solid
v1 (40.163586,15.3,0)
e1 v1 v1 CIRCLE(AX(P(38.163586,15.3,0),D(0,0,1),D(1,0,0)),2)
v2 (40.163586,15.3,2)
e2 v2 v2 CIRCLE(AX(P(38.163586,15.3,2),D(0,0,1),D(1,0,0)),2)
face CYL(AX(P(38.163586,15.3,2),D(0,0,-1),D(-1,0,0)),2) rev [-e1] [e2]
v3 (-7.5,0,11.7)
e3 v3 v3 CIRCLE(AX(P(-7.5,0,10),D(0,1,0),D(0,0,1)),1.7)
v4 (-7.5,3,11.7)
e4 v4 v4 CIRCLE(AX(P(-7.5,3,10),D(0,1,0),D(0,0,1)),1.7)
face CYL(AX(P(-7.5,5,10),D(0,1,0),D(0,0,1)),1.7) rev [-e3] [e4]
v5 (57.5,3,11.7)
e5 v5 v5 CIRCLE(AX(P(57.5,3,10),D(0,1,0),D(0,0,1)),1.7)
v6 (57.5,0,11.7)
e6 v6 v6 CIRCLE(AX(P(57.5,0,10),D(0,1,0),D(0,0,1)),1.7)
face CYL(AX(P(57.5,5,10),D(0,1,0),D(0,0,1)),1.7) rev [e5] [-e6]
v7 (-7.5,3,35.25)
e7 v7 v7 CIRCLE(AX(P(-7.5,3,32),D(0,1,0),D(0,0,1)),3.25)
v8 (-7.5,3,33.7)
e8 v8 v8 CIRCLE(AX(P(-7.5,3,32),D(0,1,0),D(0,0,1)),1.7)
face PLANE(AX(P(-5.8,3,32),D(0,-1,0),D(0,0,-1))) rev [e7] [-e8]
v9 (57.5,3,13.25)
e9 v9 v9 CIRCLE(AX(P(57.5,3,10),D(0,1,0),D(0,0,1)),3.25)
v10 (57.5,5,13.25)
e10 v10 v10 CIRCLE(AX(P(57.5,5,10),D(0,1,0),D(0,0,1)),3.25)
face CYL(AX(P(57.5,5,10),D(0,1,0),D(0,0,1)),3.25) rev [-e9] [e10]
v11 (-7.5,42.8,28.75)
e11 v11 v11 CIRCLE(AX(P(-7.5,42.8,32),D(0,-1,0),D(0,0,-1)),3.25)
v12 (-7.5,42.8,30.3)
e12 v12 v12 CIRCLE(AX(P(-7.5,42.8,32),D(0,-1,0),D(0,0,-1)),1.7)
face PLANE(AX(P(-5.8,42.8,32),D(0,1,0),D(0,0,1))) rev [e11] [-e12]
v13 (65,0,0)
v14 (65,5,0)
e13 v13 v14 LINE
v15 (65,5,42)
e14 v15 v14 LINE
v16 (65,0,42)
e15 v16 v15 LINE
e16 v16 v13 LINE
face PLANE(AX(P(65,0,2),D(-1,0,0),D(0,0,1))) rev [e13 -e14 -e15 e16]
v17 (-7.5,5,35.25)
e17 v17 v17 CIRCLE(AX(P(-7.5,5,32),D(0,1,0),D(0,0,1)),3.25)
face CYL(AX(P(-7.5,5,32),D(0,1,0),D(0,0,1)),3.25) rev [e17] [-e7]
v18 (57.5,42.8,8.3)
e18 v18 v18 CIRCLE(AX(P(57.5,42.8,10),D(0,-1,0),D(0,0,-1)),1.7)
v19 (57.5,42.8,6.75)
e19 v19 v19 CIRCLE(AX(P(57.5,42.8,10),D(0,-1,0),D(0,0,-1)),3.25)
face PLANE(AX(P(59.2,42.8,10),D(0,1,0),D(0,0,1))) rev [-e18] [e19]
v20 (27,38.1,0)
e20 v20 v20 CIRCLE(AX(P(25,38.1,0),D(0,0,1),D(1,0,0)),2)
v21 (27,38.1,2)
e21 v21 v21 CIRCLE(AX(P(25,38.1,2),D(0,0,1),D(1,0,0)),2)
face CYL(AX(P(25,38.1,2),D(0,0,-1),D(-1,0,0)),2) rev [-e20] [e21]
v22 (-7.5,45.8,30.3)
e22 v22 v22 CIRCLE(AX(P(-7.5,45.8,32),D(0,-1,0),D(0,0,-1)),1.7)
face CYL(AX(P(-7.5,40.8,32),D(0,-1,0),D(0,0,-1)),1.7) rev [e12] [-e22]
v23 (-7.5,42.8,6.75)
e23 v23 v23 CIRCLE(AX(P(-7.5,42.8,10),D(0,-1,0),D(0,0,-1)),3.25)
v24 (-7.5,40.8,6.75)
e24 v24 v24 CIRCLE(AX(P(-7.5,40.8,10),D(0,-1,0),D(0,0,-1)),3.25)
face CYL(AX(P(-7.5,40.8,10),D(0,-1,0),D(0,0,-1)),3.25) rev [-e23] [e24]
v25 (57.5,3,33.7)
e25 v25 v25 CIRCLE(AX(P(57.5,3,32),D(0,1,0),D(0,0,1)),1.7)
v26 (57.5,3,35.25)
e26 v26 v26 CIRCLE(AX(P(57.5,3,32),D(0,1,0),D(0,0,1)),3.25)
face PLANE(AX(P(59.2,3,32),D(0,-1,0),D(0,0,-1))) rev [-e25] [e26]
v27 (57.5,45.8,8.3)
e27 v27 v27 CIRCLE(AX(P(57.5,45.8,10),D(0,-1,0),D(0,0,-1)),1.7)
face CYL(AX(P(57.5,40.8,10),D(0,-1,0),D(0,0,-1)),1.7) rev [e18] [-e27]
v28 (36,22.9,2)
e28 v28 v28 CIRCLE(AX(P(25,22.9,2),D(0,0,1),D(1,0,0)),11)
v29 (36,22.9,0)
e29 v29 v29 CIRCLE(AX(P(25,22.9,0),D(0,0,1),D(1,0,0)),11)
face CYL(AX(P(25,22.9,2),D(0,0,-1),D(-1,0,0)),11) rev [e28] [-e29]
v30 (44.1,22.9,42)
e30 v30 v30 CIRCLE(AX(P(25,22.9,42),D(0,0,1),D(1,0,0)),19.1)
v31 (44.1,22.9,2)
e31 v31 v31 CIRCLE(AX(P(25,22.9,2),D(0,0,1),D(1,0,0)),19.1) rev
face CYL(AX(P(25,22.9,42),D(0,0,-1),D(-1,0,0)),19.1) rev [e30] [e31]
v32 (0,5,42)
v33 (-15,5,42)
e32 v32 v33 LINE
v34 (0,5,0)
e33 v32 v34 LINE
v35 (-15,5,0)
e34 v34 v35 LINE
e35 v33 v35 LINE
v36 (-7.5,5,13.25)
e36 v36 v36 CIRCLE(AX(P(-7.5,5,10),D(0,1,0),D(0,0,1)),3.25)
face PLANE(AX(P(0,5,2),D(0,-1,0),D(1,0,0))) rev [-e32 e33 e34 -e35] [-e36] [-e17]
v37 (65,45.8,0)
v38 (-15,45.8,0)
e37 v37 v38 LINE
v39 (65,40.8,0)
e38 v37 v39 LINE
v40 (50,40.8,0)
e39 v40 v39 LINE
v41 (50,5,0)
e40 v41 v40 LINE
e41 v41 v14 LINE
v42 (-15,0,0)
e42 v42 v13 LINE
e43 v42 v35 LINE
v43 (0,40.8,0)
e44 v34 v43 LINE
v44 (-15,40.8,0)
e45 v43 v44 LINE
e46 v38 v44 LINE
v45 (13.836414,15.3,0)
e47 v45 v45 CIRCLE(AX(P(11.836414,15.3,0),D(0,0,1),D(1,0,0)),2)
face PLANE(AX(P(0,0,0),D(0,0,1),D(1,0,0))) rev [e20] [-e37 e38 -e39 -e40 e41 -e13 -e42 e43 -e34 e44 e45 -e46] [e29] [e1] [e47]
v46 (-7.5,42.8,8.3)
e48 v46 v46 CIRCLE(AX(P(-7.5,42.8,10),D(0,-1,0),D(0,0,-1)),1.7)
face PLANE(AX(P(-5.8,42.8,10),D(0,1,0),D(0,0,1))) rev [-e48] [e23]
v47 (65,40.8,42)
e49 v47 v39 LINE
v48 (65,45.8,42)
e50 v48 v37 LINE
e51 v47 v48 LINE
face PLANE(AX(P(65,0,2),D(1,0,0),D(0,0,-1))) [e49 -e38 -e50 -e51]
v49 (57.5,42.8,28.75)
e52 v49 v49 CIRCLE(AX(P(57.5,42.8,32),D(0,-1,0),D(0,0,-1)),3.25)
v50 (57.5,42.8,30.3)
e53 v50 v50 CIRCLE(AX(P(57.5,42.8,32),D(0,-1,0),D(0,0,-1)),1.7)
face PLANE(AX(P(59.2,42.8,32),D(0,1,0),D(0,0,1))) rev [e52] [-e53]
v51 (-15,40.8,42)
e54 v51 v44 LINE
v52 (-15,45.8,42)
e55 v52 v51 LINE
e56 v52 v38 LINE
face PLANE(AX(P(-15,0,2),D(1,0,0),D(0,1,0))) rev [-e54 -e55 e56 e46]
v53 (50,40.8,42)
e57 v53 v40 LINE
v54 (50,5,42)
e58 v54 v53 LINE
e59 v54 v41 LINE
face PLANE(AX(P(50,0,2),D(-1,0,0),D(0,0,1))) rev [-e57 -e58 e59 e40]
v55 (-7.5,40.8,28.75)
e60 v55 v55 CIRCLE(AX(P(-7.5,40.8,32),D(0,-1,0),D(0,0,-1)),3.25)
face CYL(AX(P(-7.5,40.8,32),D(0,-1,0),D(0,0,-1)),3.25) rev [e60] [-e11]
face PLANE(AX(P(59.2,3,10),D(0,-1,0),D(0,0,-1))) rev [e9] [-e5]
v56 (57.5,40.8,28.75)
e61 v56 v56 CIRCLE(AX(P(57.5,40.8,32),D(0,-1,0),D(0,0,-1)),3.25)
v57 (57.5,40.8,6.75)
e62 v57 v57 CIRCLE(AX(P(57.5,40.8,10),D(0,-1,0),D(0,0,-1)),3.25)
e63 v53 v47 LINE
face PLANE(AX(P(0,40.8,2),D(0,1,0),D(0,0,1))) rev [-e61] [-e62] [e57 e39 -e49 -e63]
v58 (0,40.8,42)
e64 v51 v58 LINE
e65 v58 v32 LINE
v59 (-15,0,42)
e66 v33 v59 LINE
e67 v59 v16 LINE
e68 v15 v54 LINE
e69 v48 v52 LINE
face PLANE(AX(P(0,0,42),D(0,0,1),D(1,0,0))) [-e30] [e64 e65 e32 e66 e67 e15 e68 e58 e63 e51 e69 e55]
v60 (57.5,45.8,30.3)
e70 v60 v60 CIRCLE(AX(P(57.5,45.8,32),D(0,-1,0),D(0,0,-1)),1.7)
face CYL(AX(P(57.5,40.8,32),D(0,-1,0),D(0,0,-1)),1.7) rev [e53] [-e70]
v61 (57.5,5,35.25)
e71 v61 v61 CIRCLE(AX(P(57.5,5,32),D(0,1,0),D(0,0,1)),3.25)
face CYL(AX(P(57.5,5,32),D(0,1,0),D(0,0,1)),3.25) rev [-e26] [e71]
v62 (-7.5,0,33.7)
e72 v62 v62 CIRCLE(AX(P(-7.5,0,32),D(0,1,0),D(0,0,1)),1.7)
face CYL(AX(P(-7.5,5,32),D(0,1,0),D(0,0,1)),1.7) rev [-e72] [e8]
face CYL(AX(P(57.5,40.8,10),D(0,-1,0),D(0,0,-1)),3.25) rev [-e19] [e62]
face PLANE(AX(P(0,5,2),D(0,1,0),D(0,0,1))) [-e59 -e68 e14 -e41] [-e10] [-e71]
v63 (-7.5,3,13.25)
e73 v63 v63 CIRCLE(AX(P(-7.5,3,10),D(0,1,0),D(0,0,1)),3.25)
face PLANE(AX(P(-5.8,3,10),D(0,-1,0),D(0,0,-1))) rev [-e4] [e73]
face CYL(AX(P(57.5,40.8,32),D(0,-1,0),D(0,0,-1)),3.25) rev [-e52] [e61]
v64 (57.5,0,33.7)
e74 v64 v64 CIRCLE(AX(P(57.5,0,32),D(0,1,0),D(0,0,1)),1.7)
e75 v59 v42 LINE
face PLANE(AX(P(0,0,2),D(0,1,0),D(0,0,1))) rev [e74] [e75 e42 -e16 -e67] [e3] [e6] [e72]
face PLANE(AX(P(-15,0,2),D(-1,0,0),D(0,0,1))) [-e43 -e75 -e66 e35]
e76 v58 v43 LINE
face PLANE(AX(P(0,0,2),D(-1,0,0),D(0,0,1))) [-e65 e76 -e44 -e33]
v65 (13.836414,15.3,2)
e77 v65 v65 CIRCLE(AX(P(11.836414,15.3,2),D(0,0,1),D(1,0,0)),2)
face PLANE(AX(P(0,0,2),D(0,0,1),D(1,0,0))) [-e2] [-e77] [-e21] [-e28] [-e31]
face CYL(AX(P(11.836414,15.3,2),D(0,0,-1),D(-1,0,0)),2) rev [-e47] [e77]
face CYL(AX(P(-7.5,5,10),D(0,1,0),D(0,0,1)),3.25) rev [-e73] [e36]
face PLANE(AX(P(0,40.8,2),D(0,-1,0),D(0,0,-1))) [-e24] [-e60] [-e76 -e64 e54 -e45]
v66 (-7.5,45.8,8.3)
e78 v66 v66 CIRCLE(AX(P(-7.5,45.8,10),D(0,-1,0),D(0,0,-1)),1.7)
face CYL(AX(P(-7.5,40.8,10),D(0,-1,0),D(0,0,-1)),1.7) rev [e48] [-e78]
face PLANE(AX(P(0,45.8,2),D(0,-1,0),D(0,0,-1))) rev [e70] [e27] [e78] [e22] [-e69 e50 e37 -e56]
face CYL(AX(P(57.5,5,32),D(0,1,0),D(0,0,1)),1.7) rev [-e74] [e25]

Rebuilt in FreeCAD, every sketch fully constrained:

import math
import FreeCAD as App
import Part
import Sketcher

V = App.Vector
Q = App.Units.Quantity

doc = App.newDocument("Part")
params = doc.addObject("Spreadsheet::Sheet", "Params")
for row, (alias, value) in enumerate([
    ("sketch1_diameter", "4 mm"),
    ("sketch1_diameter2", "22 mm"),
    ("sketch1_width", "15 mm"),
    ("sketch1_width2", "80 mm"),
    ("sketch1_height", "5 mm"),
    ("pad1_length", "2 mm"),
    ("sketch2_radius", "19.1 mm"),
    ("sketch2_width", "15 mm"),
    ("sketch2_width2", "80 mm"),
    ("sketch2_height", "5 mm"),
    ("sketch2_height2", "35.8 mm"),
    ("pad2_length", "40 mm"),
    ("sketch3_diameter", "3.4 mm"),
    ("hole_diameter", "3.4 mm"),
    ("hole_depth", "5 mm"),
    ("hole_cbore_diameter", "6.5 mm"),
    ("hole_cbore_depth", "2 mm"),
], start=1):
    params.set(f"A{row}", alias)
    params.set(f"B{row}", "=" + value)
    params.setAlias(f"B{row}", alias)

body = doc.addObject("PartDesign::Body", "Body")

# Sketch on XY plane
sketch1 = body.newObject("Sketcher::SketchObject", "Sketch")
sketch1.AttachmentSupport = (doc.getObject("XY_Plane"), [""])
sketch1.MapMode = "FlatFace"
sketch1.addGeometry(Part.LineSegment(V(0, 5, 0), V(-15, 5, 0)), False)
sketch1.addGeometry(Part.LineSegment(V(-15, 5, 0), V(-15, 0, 0)), False)
sketch1.addGeometry(Part.LineSegment(V(-15, 0, 0), V(65, 0, 0)), False)
sketch1.addGeometry(Part.LineSegment(V(65, 0, 0), V(65, 5, 0)), False)
sketch1.addGeometry(Part.LineSegment(V(65, 5, 0), V(50, 5, 0)), False)
sketch1.addGeometry(Part.LineSegment(V(50, 5, 0), V(50, 40.8, 0)), False)
sketch1.addGeometry(Part.LineSegment(V(50, 40.8, 0), V(65, 40.8, 0)), False)
sketch1.addGeometry(Part.LineSegment(V(65, 40.8, 0), V(65, 45.8, 0)), False)
sketch1.addGeometry(Part.LineSegment(V(65, 45.8, 0), V(-15, 45.8, 0)), False)
sketch1.addGeometry(Part.LineSegment(V(-15, 45.8, 0), V(-15, 40.8, 0)), False)
sketch1.addGeometry(Part.LineSegment(V(-15, 40.8, 0), V(0, 40.8, 0)), False)
sketch1.addGeometry(Part.LineSegment(V(0, 40.8, 0), V(0, 5, 0)), False)
sketch1.addGeometry(Part.Circle(V(11.836414, 15.3, 0), V(0, 0, 1), 2), False)
sketch1.addGeometry(Part.Circle(V(38.163586, 15.3, 0), V(0, 0, 1), 2), False)
sketch1.addGeometry(Part.Circle(V(25, 22.9, 0), V(0, 0, 1), 11), False)
sketch1.addGeometry(Part.Circle(V(25, 38.1, 0), V(0, 0, 1), 2), False)
sketch1.addConstraint(Sketcher.Constraint("Coincident", 0, 2, 1, 1))
sketch1.addConstraint(Sketcher.Constraint("Coincident", 1, 2, 2, 1))
sketch1.addConstraint(Sketcher.Constraint("Coincident", 2, 2, 3, 1))
sketch1.addConstraint(Sketcher.Constraint("Coincident", 3, 2, 4, 1))
sketch1.addConstraint(Sketcher.Constraint("Coincident", 4, 2, 5, 1))
sketch1.addConstraint(Sketcher.Constraint("Coincident", 5, 2, 6, 1))
sketch1.addConstraint(Sketcher.Constraint("Coincident", 6, 2, 7, 1))
sketch1.addConstraint(Sketcher.Constraint("Coincident", 7, 2, 8, 1))
sketch1.addConstraint(Sketcher.Constraint("Coincident", 8, 2, 9, 1))
sketch1.addConstraint(Sketcher.Constraint("Coincident", 9, 2, 10, 1))
sketch1.addConstraint(Sketcher.Constraint("Coincident", 10, 2, 11, 1))
sketch1.addConstraint(Sketcher.Constraint("Coincident", 11, 2, 0, 1))
sketch1.addConstraint(Sketcher.Constraint("Horizontal", 0))
sketch1.addConstraint(Sketcher.Constraint("Vertical", 1))
sketch1.addConstraint(Sketcher.Constraint("Horizontal", 2))
sketch1.addConstraint(Sketcher.Constraint("Vertical", 3))
sketch1.addConstraint(Sketcher.Constraint("Horizontal", 4))
sketch1.addConstraint(Sketcher.Constraint("Vertical", 5))
sketch1.addConstraint(Sketcher.Constraint("Horizontal", 6))
sketch1.addConstraint(Sketcher.Constraint("Vertical", 7))
sketch1.addConstraint(Sketcher.Constraint("Horizontal", 8))
sketch1.addConstraint(Sketcher.Constraint("Vertical", 9))
sketch1.addConstraint(Sketcher.Constraint("Horizontal", 10))
sketch1.addConstraint(Sketcher.Constraint("Vertical", 11))
sketch1.addConstraint(Sketcher.Constraint("Equal", 12, 13))
sketch1.addConstraint(Sketcher.Constraint("Equal", 13, 15))
sketch1.addConstraint(Sketcher.Constraint("PointOnObject", 1, 2, -1))
sketch1.addConstraint(Sketcher.Constraint("PointOnObject", 10, 2, -2))
sketch1.addConstraint(Sketcher.Constraint("Horizontal", 12, 3, 13, 3))
sketch1.addConstraint(Sketcher.Constraint("Horizontal", 0, 2, 3, 2))
sketch1.addConstraint(Sketcher.Constraint("Horizontal", 6, 2, 9, 2))
sketch1.addConstraint(Sketcher.Constraint("Vertical", 14, 3, 15, 3))
sketch1.addConstraint(Sketcher.Constraint("Vertical", 3, 2, 6, 2))
sketch1.addConstraint(Sketcher.Constraint("Vertical", 1, 2, 8, 2))
sketch1.addConstraint(Sketcher.Constraint("Equal", 0, 4))
sketch1.addConstraint(Sketcher.Constraint("Equal", 3, 7))
sketch1.addConstraint(Sketcher.Constraint("Diameter", 12, Q("4 mm")))
sketch1.addConstraint(Sketcher.Constraint("Diameter", 14, Q("22 mm")))
sketch1.addConstraint(Sketcher.Constraint("DistanceX", 0, 2, 0, 1, Q("15 mm")))
sketch1.addConstraint(Sketcher.Constraint("DistanceX", 2, 1, 2, 2, Q("80 mm")))
sketch1.addConstraint(Sketcher.Constraint("DistanceY", 1, 2, 1, 1, Q("5 mm")))
sketch1.addConstraint(Sketcher.Constraint("DistanceY", 5, 1, 5, 2, Q("35.8 mm")))
sketch1.addConstraint(Sketcher.Constraint("DistanceX", -1, 1, 14, 3, Q("25 mm")))
sketch1.addConstraint(Sketcher.Constraint("DistanceY", -1, 1, 12, 3, Q("15.3 mm")))
sketch1.addConstraint(Sketcher.Constraint("DistanceY", -1, 1, 14, 3, Q("22.9 mm")))
sketch1.addConstraint(Sketcher.Constraint("DistanceY", -1, 1, 15, 3, Q("38.1 mm")))
sketch1.addConstraint(Sketcher.Constraint("DistanceX", -1, 1, 12, 3, Q("11.836414 mm")))
sketch1.addConstraint(Sketcher.Constraint("DistanceX", -1, 1, 13, 3, Q("38.163586 mm")))
sketch1.setExpression("Constraints[36]", "Params.sketch1_diameter")
sketch1.setExpression("Constraints[37]", "Params.sketch1_diameter2")
sketch1.setExpression("Constraints[38]", "Params.sketch1_width")
sketch1.setExpression("Constraints[39]", "Params.sketch1_width2")
sketch1.setExpression("Constraints[40]", "Params.sketch1_height")
pad1 = body.newObject("PartDesign::Pad", "Pad")
pad1.Profile = sketch1
pad1.setExpression("Length", "Params.pad1_length")

# Sketch on XY plane
sketch2 = body.newObject("Sketcher::SketchObject", "Sketch001")
sketch2.AttachmentSupport = (doc.getObject("XY_Plane"), [""])
sketch2.MapMode = "FlatFace"
sketch2.AttachmentOffset = App.Placement(V(0, 0, 2), App.Rotation())
sketch2.addGeometry(Part.LineSegment(V(-15, 40.8, 0), V(0, 40.8, 0)), False)
sketch2.addGeometry(Part.LineSegment(V(0, 40.8, 0), V(0, 5, 0)), False)
sketch2.addGeometry(Part.LineSegment(V(0, 5, 0), V(-15, 5, 0)), False)
sketch2.addGeometry(Part.LineSegment(V(-15, 5, 0), V(-15, 0, 0)), False)
sketch2.addGeometry(Part.LineSegment(V(-15, 0, 0), V(65, 0, 0)), False)
sketch2.addGeometry(Part.LineSegment(V(65, 0, 0), V(65, 5, 0)), False)
sketch2.addGeometry(Part.LineSegment(V(65, 5, 0), V(50, 5, 0)), False)
sketch2.addGeometry(Part.LineSegment(V(50, 5, 0), V(50, 40.8, 0)), False)
sketch2.addGeometry(Part.LineSegment(V(50, 40.8, 0), V(65, 40.8, 0)), False)
sketch2.addGeometry(Part.LineSegment(V(65, 40.8, 0), V(65, 45.8, 0)), False)
sketch2.addGeometry(Part.LineSegment(V(65, 45.8, 0), V(-15, 45.8, 0)), False)
sketch2.addGeometry(Part.LineSegment(V(-15, 45.8, 0), V(-15, 40.8, 0)), False)
sketch2.addGeometry(Part.ArcOfCircle(Part.Circle(V(25, 22.9, 0), V(0, 0, 1), 19.1), math.radians(-144.397336), math.radians(-35.602664)), False)
sketch2.addGeometry(Part.ArcOfCircle(Part.Circle(V(25, 22.9, 0), V(0, 0, 1), 19.1), math.radians(144.397336), math.radians(215.602664)), False)
sketch2.addGeometry(Part.ArcOfCircle(Part.Circle(V(25, 22.9, 0), V(0, 0, 1), 19.1), math.radians(35.602664), math.radians(144.397336)), False)
sketch2.addGeometry(Part.ArcOfCircle(Part.Circle(V(25, 22.9, 0), V(0, 0, 1), 19.1), math.radians(0), math.radians(35.602664)), False)
sketch2.addGeometry(Part.ArcOfCircle(Part.Circle(V(25, 22.9, 0), V(0, 0, 1), 19.1), math.radians(-35.602664), math.radians(0)), False)
sketch2.addConstraint(Sketcher.Constraint("Coincident", 0, 2, 1, 1))
sketch2.addConstraint(Sketcher.Constraint("Coincident", 1, 2, 2, 1))
sketch2.addConstraint(Sketcher.Constraint("Coincident", 2, 2, 3, 1))
sketch2.addConstraint(Sketcher.Constraint("Coincident", 3, 2, 4, 1))
sketch2.addConstraint(Sketcher.Constraint("Coincident", 4, 2, 5, 1))
sketch2.addConstraint(Sketcher.Constraint("Coincident", 5, 2, 6, 1))
sketch2.addConstraint(Sketcher.Constraint("Coincident", 6, 2, 7, 1))
sketch2.addConstraint(Sketcher.Constraint("Coincident", 7, 2, 8, 1))
sketch2.addConstraint(Sketcher.Constraint("Coincident", 8, 2, 9, 1))
sketch2.addConstraint(Sketcher.Constraint("Coincident", 9, 2, 10, 1))
sketch2.addConstraint(Sketcher.Constraint("Coincident", 10, 2, 11, 1))
sketch2.addConstraint(Sketcher.Constraint("Coincident", 11, 2, 0, 1))
sketch2.addConstraint(Sketcher.Constraint("Tangent", 12, 1, 13, 2))
sketch2.addConstraint(Sketcher.Constraint("Tangent", 13, 1, 14, 2))
sketch2.addConstraint(Sketcher.Constraint("Tangent", 14, 1, 15, 2))
sketch2.addConstraint(Sketcher.Constraint("Tangent", 15, 1, 16, 2))
sketch2.addConstraint(Sketcher.Constraint("Tangent", 16, 1, 12, 2))
sketch2.addConstraint(Sketcher.Constraint("Horizontal", 0))
sketch2.addConstraint(Sketcher.Constraint("Vertical", 1))
sketch2.addConstraint(Sketcher.Constraint("Horizontal", 2))
sketch2.addConstraint(Sketcher.Constraint("Vertical", 3))
sketch2.addConstraint(Sketcher.Constraint("Horizontal", 4))
sketch2.addConstraint(Sketcher.Constraint("Vertical", 5))
sketch2.addConstraint(Sketcher.Constraint("Horizontal", 6))
sketch2.addConstraint(Sketcher.Constraint("Vertical", 7))
sketch2.addConstraint(Sketcher.Constraint("Horizontal", 8))
sketch2.addConstraint(Sketcher.Constraint("Vertical", 9))
sketch2.addConstraint(Sketcher.Constraint("Horizontal", 10))
sketch2.addConstraint(Sketcher.Constraint("Vertical", 11))
sketch2.addConstraint(Sketcher.Constraint("Coincident", 14, 3, 12, 3))
sketch2.addConstraint(Sketcher.Constraint("PointOnObject", 0, 2, -2))
sketch2.addConstraint(Sketcher.Constraint("PointOnObject", 3, 2, -1))
sketch2.addConstraint(Sketcher.Constraint("Horizontal", 2, 2, 5, 2))
sketch2.addConstraint(Sketcher.Constraint("Horizontal", 0, 2, 7, 2))
sketch2.addConstraint(Sketcher.Constraint("Horizontal", 13, 1, 14, 1))
sketch2.addConstraint(Sketcher.Constraint("Horizontal", 16, 3, 15, 1))
sketch2.addConstraint(Sketcher.Constraint("Horizontal", 12, 1, 16, 1))
sketch2.addConstraint(Sketcher.Constraint("Vertical", 5, 2, 8, 2))
sketch2.addConstraint(Sketcher.Constraint("Vertical", 3, 2, 10, 2))
sketch2.addConstraint(Sketcher.Constraint("Vertical", 12, 1, 13, 1))
sketch2.addConstraint(Sketcher.Constraint("Equal", 2, 6))
sketch2.addConstraint(Sketcher.Constraint("Equal", 5, 9))
sketch2.addConstraint(Sketcher.Constraint("Radius", 12, Q("19.1 mm")))
sketch2.addConstraint(Sketcher.Constraint("DistanceX", 0, 1, 0, 2, Q("15 mm")))
sketch2.addConstraint(Sketcher.Constraint("DistanceX", 4, 1, 4, 2, Q("80 mm")))
sketch2.addConstraint(Sketcher.Constraint("DistanceY", 3, 2, 3, 1, Q("5 mm")))
sketch2.addConstraint(Sketcher.Constraint("DistanceY", 1, 2, 1, 1, Q("35.8 mm")))
sketch2.addConstraint(Sketcher.Constraint("DistanceX", -1, 1, 12, 3, Q("25 mm")))
sketch2.addConstraint(Sketcher.Constraint("DistanceY", -1, 1, 12, 3, Q("22.9 mm")))
sketch2.addConstraint(Sketcher.Constraint("DistanceY", -1, 1, 12, 1, Q("11.780729 mm")))
sketch2.setExpression("Constraints[42]", "Params.sketch2_radius")
sketch2.setExpression("Constraints[43]", "Params.sketch2_width")
sketch2.setExpression("Constraints[44]", "Params.sketch2_width2")
sketch2.setExpression("Constraints[45]", "Params.sketch2_height")
sketch2.setExpression("Constraints[46]", "Params.sketch2_height2")
pad2 = body.newObject("PartDesign::Pad", "Pad001")
pad2.Profile = sketch2
pad2.setExpression("Length", "Params.pad2_length")

# Sketch on XZ plane
sketch3 = body.newObject("Sketcher::SketchObject", "Sketch002")
sketch3.AttachmentSupport = (doc.getObject("XZ_Plane"), [""])
sketch3.MapMode = "FlatFace"
sketch3.AttachmentOffset = App.Placement(V(0, 0, -5), App.Rotation())
sketch3.addGeometry(Part.Circle(V(57.5, 32, 0), V(0, 0, 1), 1.7), False)
sketch3.addGeometry(Part.Circle(V(57.5, 10, 0), V(0, 0, 1), 1.7), False)
sketch3.addGeometry(Part.Circle(V(-7.5, 10, 0), V(0, 0, 1), 1.7), False)
sketch3.addGeometry(Part.Circle(V(-7.5, 32, 0), V(0, 0, 1), 1.7), False)
sketch3.addConstraint(Sketcher.Constraint("Equal", 0, 1))
sketch3.addConstraint(Sketcher.Constraint("Equal", 1, 2))
sketch3.addConstraint(Sketcher.Constraint("Equal", 2, 3))
sketch3.addConstraint(Sketcher.Constraint("Horizontal", 1, 3, 2, 3))
sketch3.addConstraint(Sketcher.Constraint("Horizontal", 0, 3, 3, 3))
sketch3.addConstraint(Sketcher.Constraint("Vertical", 0, 3, 1, 3))
sketch3.addConstraint(Sketcher.Constraint("Vertical", 2, 3, 3, 3))
sketch3.addConstraint(Sketcher.Constraint("Diameter", 0, Q("3.4 mm")))
sketch3.addConstraint(Sketcher.Constraint("DistanceY", -1, 1, 0, 3, Q("32 mm")))
sketch3.addConstraint(Sketcher.Constraint("DistanceY", -1, 1, 1, 3, Q("10 mm")))
sketch3.addConstraint(Sketcher.Constraint("DistanceX", 2, 3, 1, 3, Q("65 mm")))
sketch3.addConstraint(Sketcher.Constraint("DistanceX", -1, 1, 0, 3, Q("57.5 mm")))
sketch3.setExpression("Constraints[7]", "Params.sketch3_diameter")
doc.recompute()
hole = body.newObject("PartDesign::Hole", "Hole")
hole.Profile = sketch3
hole.ThreadType = "None"
hole.setExpression("Diameter", "Params.hole_diameter")
hole.DepthType = "Dimension"
hole.setExpression("Depth", "Params.hole_depth")
hole.DrillPoint = "Flat"
hole.HoleCutType = "Counterbore"
hole.setExpression("HoleCutDiameter", "Params.hole_cbore_diameter")
hole.setExpression("HoleCutDepth", "Params.hole_cbore_depth")
hole.Reversed = True
doc.recompute()

datumplane = body.newObject("PartDesign::Plane", "DatumPlane")
datumplane.AttachmentSupport = (doc.getObject("XZ_Plane"), [""])
datumplane.MapMode = "FlatFace"
datumplane.AttachmentOffset = App.Placement(V(0, 0, -22.9), App.Rotation())
mirrored = body.newObject("PartDesign::Mirrored", "Mirrored")
mirrored.Originals = [hole]
mirrored.MirrorPlane = (datumplane, [""])
body.Tip = mirrored

doc.recompute()
